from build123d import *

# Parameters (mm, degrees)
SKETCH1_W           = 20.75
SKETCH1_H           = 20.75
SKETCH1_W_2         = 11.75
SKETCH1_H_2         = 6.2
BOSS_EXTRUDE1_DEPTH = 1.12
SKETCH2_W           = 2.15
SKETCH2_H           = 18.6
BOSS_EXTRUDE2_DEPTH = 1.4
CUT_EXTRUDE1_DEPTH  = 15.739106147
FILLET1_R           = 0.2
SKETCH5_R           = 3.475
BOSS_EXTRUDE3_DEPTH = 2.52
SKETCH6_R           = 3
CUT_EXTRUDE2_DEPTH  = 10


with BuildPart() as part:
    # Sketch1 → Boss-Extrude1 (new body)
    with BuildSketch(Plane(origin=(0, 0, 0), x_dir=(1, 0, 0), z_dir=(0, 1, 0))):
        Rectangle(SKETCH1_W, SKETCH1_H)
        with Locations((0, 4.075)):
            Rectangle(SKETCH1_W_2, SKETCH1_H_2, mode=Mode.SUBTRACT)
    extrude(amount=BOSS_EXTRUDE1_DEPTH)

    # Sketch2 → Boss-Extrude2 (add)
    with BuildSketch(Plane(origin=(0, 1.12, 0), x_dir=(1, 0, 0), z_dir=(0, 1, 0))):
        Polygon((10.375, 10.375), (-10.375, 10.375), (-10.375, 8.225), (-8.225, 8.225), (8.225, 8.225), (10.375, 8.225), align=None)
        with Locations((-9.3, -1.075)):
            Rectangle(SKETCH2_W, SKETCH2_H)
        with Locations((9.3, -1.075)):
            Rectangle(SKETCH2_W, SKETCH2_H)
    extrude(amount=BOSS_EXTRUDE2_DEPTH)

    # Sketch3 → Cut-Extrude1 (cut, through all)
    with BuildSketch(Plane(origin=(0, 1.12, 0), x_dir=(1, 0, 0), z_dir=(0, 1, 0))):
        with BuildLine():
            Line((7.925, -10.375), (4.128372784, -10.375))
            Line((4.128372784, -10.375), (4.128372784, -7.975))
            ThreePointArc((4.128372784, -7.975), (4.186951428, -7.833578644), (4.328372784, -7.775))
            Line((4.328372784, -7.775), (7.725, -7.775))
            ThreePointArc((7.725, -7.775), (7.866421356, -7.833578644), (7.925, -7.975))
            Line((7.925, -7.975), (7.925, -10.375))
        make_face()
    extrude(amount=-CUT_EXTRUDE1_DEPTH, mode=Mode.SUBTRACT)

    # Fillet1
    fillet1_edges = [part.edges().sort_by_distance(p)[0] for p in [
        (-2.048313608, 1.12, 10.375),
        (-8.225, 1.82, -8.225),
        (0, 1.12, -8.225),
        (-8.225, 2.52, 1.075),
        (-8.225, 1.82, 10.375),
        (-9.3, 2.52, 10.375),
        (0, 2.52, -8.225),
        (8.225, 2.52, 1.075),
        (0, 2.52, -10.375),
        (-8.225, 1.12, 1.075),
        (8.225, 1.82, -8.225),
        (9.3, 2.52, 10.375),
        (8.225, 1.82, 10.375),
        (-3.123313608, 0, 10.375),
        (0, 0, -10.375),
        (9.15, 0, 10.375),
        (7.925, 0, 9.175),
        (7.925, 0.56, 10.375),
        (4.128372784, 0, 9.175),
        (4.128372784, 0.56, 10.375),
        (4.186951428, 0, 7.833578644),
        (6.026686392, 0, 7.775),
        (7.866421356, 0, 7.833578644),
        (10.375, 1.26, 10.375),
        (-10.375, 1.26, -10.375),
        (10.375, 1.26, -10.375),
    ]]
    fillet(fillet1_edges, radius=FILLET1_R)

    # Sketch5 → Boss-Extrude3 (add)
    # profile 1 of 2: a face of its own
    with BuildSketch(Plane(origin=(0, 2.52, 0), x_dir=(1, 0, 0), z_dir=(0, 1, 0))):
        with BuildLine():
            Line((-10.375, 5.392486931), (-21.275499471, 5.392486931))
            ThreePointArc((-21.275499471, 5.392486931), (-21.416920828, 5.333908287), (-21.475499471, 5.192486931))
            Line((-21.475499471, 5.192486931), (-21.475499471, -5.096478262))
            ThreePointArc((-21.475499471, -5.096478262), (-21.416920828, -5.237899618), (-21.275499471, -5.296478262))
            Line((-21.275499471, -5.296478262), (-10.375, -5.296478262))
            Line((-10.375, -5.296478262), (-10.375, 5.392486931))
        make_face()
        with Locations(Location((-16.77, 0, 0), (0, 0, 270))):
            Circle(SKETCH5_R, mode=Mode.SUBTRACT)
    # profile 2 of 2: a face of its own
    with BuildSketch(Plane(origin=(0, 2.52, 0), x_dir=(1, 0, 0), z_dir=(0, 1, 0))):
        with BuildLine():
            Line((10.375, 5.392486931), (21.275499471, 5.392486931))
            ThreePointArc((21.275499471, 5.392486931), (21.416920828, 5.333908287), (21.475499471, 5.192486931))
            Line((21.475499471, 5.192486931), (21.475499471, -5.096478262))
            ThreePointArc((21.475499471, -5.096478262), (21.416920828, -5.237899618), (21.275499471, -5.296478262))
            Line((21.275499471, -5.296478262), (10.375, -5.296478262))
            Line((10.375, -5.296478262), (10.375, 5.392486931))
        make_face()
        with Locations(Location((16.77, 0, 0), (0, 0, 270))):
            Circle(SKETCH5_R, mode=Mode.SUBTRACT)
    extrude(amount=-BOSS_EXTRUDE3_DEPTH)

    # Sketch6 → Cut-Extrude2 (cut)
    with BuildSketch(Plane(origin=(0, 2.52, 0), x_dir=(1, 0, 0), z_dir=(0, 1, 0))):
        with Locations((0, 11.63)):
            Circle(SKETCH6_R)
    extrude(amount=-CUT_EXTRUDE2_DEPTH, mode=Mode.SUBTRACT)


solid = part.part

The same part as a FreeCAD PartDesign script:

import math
import FreeCAD as App
import Part
import Sketcher

V = App.Vector


def edges_at(feature, points):
    """Names of the edges that pass closest to the given points."""
    edges = feature.Shape.Edges
    near = lambda p: min(range(len(edges)), key=lambda i: edges[i].distToShape(Part.Vertex(*p))[0])
    return sorted({f"Edge{near(p) + 1}" for p in points})

doc = App.newDocument("Part")
body = doc.addObject("PartDesign::Body", "Body")

# Sketch on XZ plane
sketch1 = doc.addObject("Sketcher::SketchObject", "Sketch")
body.addObject(sketch1)
sketch1.AttachmentSupport = (doc.XZ_Plane, [""])
sketch1.MapMode = "FlatFace"
sketch1.addGeometry([
    Part.LineSegment(V(-10.375, -10.375, 0), V(-10.375, 10.375, 0)),  # 0
    Part.LineSegment(V(-10.375, 10.375, 0), V(10.375, 10.375, 0)),  # 1
    Part.LineSegment(V(10.375, 10.375, 0), V(10.375, -10.375, 0)),  # 2
    Part.LineSegment(V(10.375, -10.375, 0), V(-10.375, -10.375, 0)),  # 3
    Part.LineSegment(V(5.875, -0.975, 0), V(-5.875, -0.975, 0)),  # 4
    Part.LineSegment(V(-5.875, -0.975, 0), V(-5.875, -7.175, 0)),  # 5
    Part.LineSegment(V(-5.875, -7.175, 0), V(5.875, -7.175, 0)),  # 6
    Part.LineSegment(V(5.875, -7.175, 0), V(5.875, -0.975, 0)),  # 7
], False)
sketch1.addConstraint([
    Sketcher.Constraint("Coincident", 0, 2, 1, 1),
    Sketcher.Constraint("Coincident", 1, 2, 2, 1),
    Sketcher.Constraint("Coincident", 2, 2, 3, 1),
    Sketcher.Constraint("Coincident", 3, 2, 0, 1),
    Sketcher.Constraint("Coincident", 4, 2, 5, 1),
    Sketcher.Constraint("Coincident", 5, 2, 6, 1),
    Sketcher.Constraint("Coincident", 6, 2, 7, 1),
    Sketcher.Constraint("Coincident", 7, 2, 4, 1),
    Sketcher.Constraint("Vertical", 0),
    Sketcher.Constraint("Horizontal", 1),
    Sketcher.Constraint("Vertical", 2),
    Sketcher.Constraint("Horizontal", 3),
    Sketcher.Constraint("Horizontal", 4),
    Sketcher.Constraint("Vertical", 5),
    Sketcher.Constraint("Horizontal", 6),
    Sketcher.Constraint("Vertical", 7),
    Sketcher.Constraint("Symmetric", 0, 2, 2, 2, -1, 1),
    Sketcher.Constraint("Equal", 3, 0),
    Sketcher.Constraint("DistanceY", 5, 2, 5, 1, 6.2),
    Sketcher.Constraint("DistanceX", 1, 1, 1, 2, 20.75),
    Sketcher.Constraint("DistanceX", 4, 2, 4, 1, 11.75),
    Sketcher.Constraint("DistanceX", 3, 2, 4, 2, 4.5),
    Sketcher.Constraint("DistanceY", 3, 2, 4, 2, 9.4),
])
pad1 = doc.addObject("PartDesign::Pad", "Pad")
body.addObject(pad1)
pad1.Profile = sketch1
pad1.Length = 1.12
pad1.Reversed = True

# Sketch on XZ plane
sketch2 = doc.addObject("Sketcher::SketchObject", "Sketch001")
body.addObject(sketch2)
sketch2.AttachmentSupport = (doc.XZ_Plane, [""])
sketch2.MapMode = "FlatFace"
sketch2.AttachmentOffset = App.Placement(V(0, 0, -1.12), App.Rotation())
sketch2.addGeometry([
    Part.LineSegment(V(10.375, -10.375, 0), V(-10.375, -10.375, 0)),  # 0
    Part.LineSegment(V(-10.375, -10.375, 0), V(-10.375, 10.375, 0)),  # 1
    Part.LineSegment(V(-10.375, 10.375, 0), V(-8.225, 10.375, 0)),  # 2
    Part.LineSegment(V(-8.225, 10.375, 0), V(-8.225, -8.225, 0)),  # 3
    Part.LineSegment(V(-8.225, -8.225, 0), V(8.225, -8.225, 0)),  # 4
    Part.LineSegment(V(8.225, -8.225, 0), V(8.225, 10.375, 0)),  # 5
    Part.LineSegment(V(8.225, 10.375, 0), V(10.375, 10.375, 0)),  # 6
    Part.LineSegment(V(10.375, 10.375, 0), V(10.375, -10.375, 0)),  # 7
], False)
sketch2.addConstraint([
    Sketcher.Constraint("Coincident", 0, 2, 1, 1),
    Sketcher.Constraint("Coincident", 1, 2, 2, 1),
    Sketcher.Constraint("Coincident", 2, 2, 3, 1),
    Sketcher.Constraint("Coincident", 3, 2, 4, 1),
    Sketcher.Constraint("Coincident", 4, 2, 5, 1),
    Sketcher.Constraint("Coincident", 5, 2, 6, 1),
    Sketcher.Constraint("Coincident", 6, 2, 7, 1),
    Sketcher.Constraint("Coincident", 7, 2, 0, 1),
    Sketcher.Constraint("Horizontal", 0),
    Sketcher.Constraint("Vertical", 1),
    Sketcher.Constraint("Horizontal", 2),
    Sketcher.Constraint("Vertical", 3),
    Sketcher.Constraint("Horizontal", 4),
    Sketcher.Constraint("Vertical", 5),
    Sketcher.Constraint("Horizontal", 6),
    Sketcher.Constraint("Vertical", 7),
    Sketcher.Constraint("Symmetric", 0, 2, 6, 2, -1, 1),
    Sketcher.Constraint("Symmetric", 2, 2, 5, 2, -2),
    Sketcher.Constraint("Equal", 0, 1),
    Sketcher.Constraint("DistanceY", 3, 2, 3, 1, 18.6),
    Sketcher.Constraint("DistanceX", 0, 2, 0, 1, 20.75),
    Sketcher.Constraint("DistanceX", 2, 1, 2, 2, 2.15),
])
pad2 = doc.addObject("PartDesign::Pad", "Pad001")
body.addObject(pad2)
pad2.Profile = sketch2
pad2.Length = 1.4
pad2.Reversed = True

# Sketch on XZ plane
sketch3 = doc.addObject("Sketcher::SketchObject", "Sketch002")
body.addObject(sketch3)
sketch3.AttachmentSupport = (doc.XZ_Plane, [""])
sketch3.MapMode = "FlatFace"
sketch3.AttachmentOffset = App.Placement(V(0, 0, -1.12), App.Rotation())
sketch3.addGeometry([
    Part.LineSegment(V(4.128373, 10.375, 0), V(7.925, 10.375, 0)),  # 0
    Part.LineSegment(V(7.925, 10.375, 0), V(7.925, 7.975, 0)),  # 1
    Part.ArcOfCircle(Part.Circle(V(7.725, 7.975, 0), V(0, 0, 1), 0.2), math.radians(-90), math.radians(0)),  # 2
    Part.LineSegment(V(7.725, 7.775, 0), V(4.328373, 7.775, 0)),  # 3
    Part.ArcOfCircle(Part.Circle(V(4.328373, 7.975, 0), V(0, 0, 1), 0.2), math.radians(-180), math.radians(-90)),  # 4
    Part.LineSegment(V(4.128373, 7.975, 0), V(4.128373, 10.375, 0)),  # 5
], False)
sketch3.addConstraint([
    Sketcher.Constraint("Coincident", 0, 2, 1, 1),
    Sketcher.Constraint("Tangent", 1, 2, 2, 2),
    Sketcher.Constraint("Tangent", 2, 1, 3, 1),
    Sketcher.Constraint("Tangent", 3, 2, 4, 2),
    Sketcher.Constraint("Tangent", 4, 1, 5, 1),
    Sketcher.Constraint("Coincident", 5, 2, 0, 1),
    Sketcher.Constraint("Horizontal", 0),
    Sketcher.Constraint("Vertical", 1),
    Sketcher.Constraint("Horizontal", 3),
    Sketcher.Constraint("Vertical", 5),
    Sketcher.Constraint("Equal", 2, 4),
    Sketcher.Constraint("Radius", 2, 0.2),
    Sketcher.Constraint("DistanceY", 1, 2, 1, 1, 2.4),
    Sketcher.Constraint("DistanceX", -1, 1, 2, 3, 7.725),
    Sketcher.Constraint("DistanceY", -1, 1, 2, 3, 7.975),
    Sketcher.Constraint("DistanceX", 0, 1, 0, 2, 3.796627),
])
pocket1 = doc.addObject("PartDesign::Pocket", "Pocket")
body.addObject(pocket1)
pocket1.Profile = sketch3
pocket1.Type = "ThroughAll"
pocket1.Reversed = True
doc.recompute()

fillet = doc.addObject("PartDesign::Fillet", "Fillet")
body.addObject(fillet)
fillet.Base = (pocket1, edges_at(pocket1, [
    (-2.048, 1.12, 10.375),
    (-8.225, 1.82, -8.225),
    (0, 1.12, -8.225),
    (-8.225, 2.52, 1.075),
    (-8.225, 1.82, 10.375),
    (-9.3, 2.52, 10.375),
    (0, 2.52, -8.225),
    (8.225, 2.52, 1.075),
    (0, 2.52, -10.375),
    (-8.225, 1.12, 1.075),
    (8.225, 1.82, -8.225),
    (9.3, 2.52, 10.375),
    (8.225, 1.82, 10.375),
    (-3.123, 0, 10.375),
    (0, 0, -10.375),
    (9.15, 0, 10.375),
    (7.925, 0, 9.175),
    (7.925, 0.56, 10.375),
    (4.128, 0, 9.175),
    (4.128, 0.56, 10.375),
    (4.187, 0, 7.834),
    (6.027, 0, 7.775),
    (7.866, 0, 7.834),
    (10.375, 1.26, 10.375),
    (-10.375, 1.26, -10.375),
    (10.375, 1.26, -10.375),
]))
fillet.Radius = 0.2

# Sketch on XZ plane
sketch4 = doc.addObject("Sketcher::SketchObject", "Sketch003")
body.addObject(sketch4)
sketch4.AttachmentSupport = (doc.XZ_Plane, [""])
sketch4.MapMode = "FlatFace"
sketch4.AttachmentOffset = App.Placement(V(0, 0, -2.52), App.Rotation())
sketch4.addGeometry([
    Part.LineSegment(V(-10.375, -5.392487, 0), V(-21.275499, -5.392487, 0)),  # 0
    Part.ArcOfCircle(Part.Circle(V(-21.275499, -5.192487, 0), V(0, 0, 1), 0.2), math.radians(180), math.radians(270)),  # 1
    Part.LineSegment(V(-21.475499, -5.192487, 0), V(-21.475499, 5.096478, 0)),  # 2
    Part.ArcOfCircle(Part.Circle(V(-21.275499, 5.096478, 0), V(0, 0, 1), 0.2), math.radians(90), math.radians(180)),  # 3
    Part.LineSegment(V(-21.275499, 5.296478, 0), V(-10.375, 5.296478, 0)),  # 4
    Part.LineSegment(V(-10.375, 5.296478, 0), V(-10.375, -5.392487, 0)),  # 5
    Part.Circle(V(-16.77, 0, 0), V(0, 0, 1), 3.475),  # 6
    Part.LineSegment(V(21.275499, -5.392487, 0), V(10.375, -5.392487, 0)),  # 7
    Part.LineSegment(V(10.375, -5.392487, 0), V(10.375, 5.296478, 0)),  # 8
    Part.LineSegment(V(10.375, 5.296478, 0), V(21.275499, 5.296478, 0)),  # 9
    Part.ArcOfCircle(Part.Circle(V(21.275499, 5.096478, 0), V(0, 0, 1), 0.2), math.radians(0), math.radians(90)),  # 10
    Part.LineSegment(V(21.475499, 5.096478, 0), V(21.475499, -5.192487, 0)),  # 11
    Part.ArcOfCircle(Part.Circle(V(21.275499, -5.192487, 0), V(0, 0, 1), 0.2), math.radians(-90), math.radians(0)),  # 12
    Part.Circle(V(16.77, 0, 0), V(0, 0, 1), 3.475),  # 13
], False)
sketch4.addConstraint([
    Sketcher.Constraint("Tangent", 0, 2, 1, 2),
    Sketcher.Constraint("Tangent", 1, 1, 2, 1),
    Sketcher.Constraint("Tangent", 2, 2, 3, 2),
    Sketcher.Constraint("Tangent", 3, 1, 4, 1),
    Sketcher.Constraint("Coincident", 4, 2, 5, 1),
    Sketcher.Constraint("Coincident", 5, 2, 0, 1),
    Sketcher.Constraint("Coincident", 7, 2, 8, 1),
    Sketcher.Constraint("Coincident", 8, 2, 9, 1),
    Sketcher.Constraint("Tangent", 9, 2, 10, 2),
    Sketcher.Constraint("Tangent", 10, 1, 11, 1),
    Sketcher.Constraint("Tangent", 11, 2, 12, 2),
    Sketcher.Constraint("Tangent", 12, 1, 7, 1),
    Sketcher.Constraint("Horizontal", 0),
    Sketcher.Constraint("Vertical", 2),
    Sketcher.Constraint("Horizontal", 4),
    Sketcher.Constraint("Vertical", 5),
    Sketcher.Constraint("Horizontal", 7),
    Sketcher.Constraint("Vertical", 8),
    Sketcher.Constraint("Horizontal", 9),
    Sketcher.Constraint("Vertical", 11),
    Sketcher.Constraint("Equal", 1, 3),
    Sketcher.Constraint("Equal", 3, 10),
    Sketcher.Constraint("Equal", 10, 12),
    Sketcher.Constraint("Equal", 6, 13),
    Sketcher.Constraint("Symmetric", 6, 3, 13, 3, -1, 1),
    Sketcher.Constraint("Symmetric", 3, 3, 10, 3, -2),
    Sketcher.Constraint("Symmetric", 5, 2, 7, 2, -2),
    Sketcher.Constraint("PointOnObject", 6, 3, -1),
    Sketcher.Constraint("Radius", 1, 0.2),
    Sketcher.Constraint("Diameter", 6, 6.95),
    Sketcher.Constraint("DistanceX", 6, 3, -1, 1, 16.77),
    Sketcher.Constraint("DistanceX", 5, 2, 7, 2, 20.75),
    Sketcher.Constraint("DistanceX", 0, 2, 0, 1, 10.900499),
    Sketcher.Constraint("DistanceY", 2, 1, 2, 2, 10.288965),
    Sketcher.Constraint("DistanceY", -1, 1, 3, 3, 5.096478),
])
pad3 = doc.addObject("PartDesign::Pad", "Pad002")
body.addObject(pad3)
pad3.Profile = sketch4
pad3.Length = 2.52

# Sketch on XZ plane
sketch5 = doc.addObject("Sketcher::SketchObject", "Sketch004")
body.addObject(sketch5)
sketch5.AttachmentSupport = (doc.XZ_Plane, [""])
sketch5.MapMode = "FlatFace"
sketch5.AttachmentOffset = App.Placement(V(0, 0, -2.52), App.Rotation())
sketch5.addGeometry(Part.Circle(V(0, -11.63, 0), V(0, 0, 1), 3), False)
sketch5.addConstraint([
    Sketcher.Constraint("PointOnObject", 0, 3, -2),
    Sketcher.Constraint("Diameter", 0, 6.0),
    Sketcher.Constraint("DistanceY", 0, 3, -1, 1, 11.63),
])
pocket2 = doc.addObject("PartDesign::Pocket", "Pocket001")
body.addObject(pocket2)
pocket2.Profile = sketch5
pocket2.Length = 10
pocket2.Reversed = True

doc.recompute()
